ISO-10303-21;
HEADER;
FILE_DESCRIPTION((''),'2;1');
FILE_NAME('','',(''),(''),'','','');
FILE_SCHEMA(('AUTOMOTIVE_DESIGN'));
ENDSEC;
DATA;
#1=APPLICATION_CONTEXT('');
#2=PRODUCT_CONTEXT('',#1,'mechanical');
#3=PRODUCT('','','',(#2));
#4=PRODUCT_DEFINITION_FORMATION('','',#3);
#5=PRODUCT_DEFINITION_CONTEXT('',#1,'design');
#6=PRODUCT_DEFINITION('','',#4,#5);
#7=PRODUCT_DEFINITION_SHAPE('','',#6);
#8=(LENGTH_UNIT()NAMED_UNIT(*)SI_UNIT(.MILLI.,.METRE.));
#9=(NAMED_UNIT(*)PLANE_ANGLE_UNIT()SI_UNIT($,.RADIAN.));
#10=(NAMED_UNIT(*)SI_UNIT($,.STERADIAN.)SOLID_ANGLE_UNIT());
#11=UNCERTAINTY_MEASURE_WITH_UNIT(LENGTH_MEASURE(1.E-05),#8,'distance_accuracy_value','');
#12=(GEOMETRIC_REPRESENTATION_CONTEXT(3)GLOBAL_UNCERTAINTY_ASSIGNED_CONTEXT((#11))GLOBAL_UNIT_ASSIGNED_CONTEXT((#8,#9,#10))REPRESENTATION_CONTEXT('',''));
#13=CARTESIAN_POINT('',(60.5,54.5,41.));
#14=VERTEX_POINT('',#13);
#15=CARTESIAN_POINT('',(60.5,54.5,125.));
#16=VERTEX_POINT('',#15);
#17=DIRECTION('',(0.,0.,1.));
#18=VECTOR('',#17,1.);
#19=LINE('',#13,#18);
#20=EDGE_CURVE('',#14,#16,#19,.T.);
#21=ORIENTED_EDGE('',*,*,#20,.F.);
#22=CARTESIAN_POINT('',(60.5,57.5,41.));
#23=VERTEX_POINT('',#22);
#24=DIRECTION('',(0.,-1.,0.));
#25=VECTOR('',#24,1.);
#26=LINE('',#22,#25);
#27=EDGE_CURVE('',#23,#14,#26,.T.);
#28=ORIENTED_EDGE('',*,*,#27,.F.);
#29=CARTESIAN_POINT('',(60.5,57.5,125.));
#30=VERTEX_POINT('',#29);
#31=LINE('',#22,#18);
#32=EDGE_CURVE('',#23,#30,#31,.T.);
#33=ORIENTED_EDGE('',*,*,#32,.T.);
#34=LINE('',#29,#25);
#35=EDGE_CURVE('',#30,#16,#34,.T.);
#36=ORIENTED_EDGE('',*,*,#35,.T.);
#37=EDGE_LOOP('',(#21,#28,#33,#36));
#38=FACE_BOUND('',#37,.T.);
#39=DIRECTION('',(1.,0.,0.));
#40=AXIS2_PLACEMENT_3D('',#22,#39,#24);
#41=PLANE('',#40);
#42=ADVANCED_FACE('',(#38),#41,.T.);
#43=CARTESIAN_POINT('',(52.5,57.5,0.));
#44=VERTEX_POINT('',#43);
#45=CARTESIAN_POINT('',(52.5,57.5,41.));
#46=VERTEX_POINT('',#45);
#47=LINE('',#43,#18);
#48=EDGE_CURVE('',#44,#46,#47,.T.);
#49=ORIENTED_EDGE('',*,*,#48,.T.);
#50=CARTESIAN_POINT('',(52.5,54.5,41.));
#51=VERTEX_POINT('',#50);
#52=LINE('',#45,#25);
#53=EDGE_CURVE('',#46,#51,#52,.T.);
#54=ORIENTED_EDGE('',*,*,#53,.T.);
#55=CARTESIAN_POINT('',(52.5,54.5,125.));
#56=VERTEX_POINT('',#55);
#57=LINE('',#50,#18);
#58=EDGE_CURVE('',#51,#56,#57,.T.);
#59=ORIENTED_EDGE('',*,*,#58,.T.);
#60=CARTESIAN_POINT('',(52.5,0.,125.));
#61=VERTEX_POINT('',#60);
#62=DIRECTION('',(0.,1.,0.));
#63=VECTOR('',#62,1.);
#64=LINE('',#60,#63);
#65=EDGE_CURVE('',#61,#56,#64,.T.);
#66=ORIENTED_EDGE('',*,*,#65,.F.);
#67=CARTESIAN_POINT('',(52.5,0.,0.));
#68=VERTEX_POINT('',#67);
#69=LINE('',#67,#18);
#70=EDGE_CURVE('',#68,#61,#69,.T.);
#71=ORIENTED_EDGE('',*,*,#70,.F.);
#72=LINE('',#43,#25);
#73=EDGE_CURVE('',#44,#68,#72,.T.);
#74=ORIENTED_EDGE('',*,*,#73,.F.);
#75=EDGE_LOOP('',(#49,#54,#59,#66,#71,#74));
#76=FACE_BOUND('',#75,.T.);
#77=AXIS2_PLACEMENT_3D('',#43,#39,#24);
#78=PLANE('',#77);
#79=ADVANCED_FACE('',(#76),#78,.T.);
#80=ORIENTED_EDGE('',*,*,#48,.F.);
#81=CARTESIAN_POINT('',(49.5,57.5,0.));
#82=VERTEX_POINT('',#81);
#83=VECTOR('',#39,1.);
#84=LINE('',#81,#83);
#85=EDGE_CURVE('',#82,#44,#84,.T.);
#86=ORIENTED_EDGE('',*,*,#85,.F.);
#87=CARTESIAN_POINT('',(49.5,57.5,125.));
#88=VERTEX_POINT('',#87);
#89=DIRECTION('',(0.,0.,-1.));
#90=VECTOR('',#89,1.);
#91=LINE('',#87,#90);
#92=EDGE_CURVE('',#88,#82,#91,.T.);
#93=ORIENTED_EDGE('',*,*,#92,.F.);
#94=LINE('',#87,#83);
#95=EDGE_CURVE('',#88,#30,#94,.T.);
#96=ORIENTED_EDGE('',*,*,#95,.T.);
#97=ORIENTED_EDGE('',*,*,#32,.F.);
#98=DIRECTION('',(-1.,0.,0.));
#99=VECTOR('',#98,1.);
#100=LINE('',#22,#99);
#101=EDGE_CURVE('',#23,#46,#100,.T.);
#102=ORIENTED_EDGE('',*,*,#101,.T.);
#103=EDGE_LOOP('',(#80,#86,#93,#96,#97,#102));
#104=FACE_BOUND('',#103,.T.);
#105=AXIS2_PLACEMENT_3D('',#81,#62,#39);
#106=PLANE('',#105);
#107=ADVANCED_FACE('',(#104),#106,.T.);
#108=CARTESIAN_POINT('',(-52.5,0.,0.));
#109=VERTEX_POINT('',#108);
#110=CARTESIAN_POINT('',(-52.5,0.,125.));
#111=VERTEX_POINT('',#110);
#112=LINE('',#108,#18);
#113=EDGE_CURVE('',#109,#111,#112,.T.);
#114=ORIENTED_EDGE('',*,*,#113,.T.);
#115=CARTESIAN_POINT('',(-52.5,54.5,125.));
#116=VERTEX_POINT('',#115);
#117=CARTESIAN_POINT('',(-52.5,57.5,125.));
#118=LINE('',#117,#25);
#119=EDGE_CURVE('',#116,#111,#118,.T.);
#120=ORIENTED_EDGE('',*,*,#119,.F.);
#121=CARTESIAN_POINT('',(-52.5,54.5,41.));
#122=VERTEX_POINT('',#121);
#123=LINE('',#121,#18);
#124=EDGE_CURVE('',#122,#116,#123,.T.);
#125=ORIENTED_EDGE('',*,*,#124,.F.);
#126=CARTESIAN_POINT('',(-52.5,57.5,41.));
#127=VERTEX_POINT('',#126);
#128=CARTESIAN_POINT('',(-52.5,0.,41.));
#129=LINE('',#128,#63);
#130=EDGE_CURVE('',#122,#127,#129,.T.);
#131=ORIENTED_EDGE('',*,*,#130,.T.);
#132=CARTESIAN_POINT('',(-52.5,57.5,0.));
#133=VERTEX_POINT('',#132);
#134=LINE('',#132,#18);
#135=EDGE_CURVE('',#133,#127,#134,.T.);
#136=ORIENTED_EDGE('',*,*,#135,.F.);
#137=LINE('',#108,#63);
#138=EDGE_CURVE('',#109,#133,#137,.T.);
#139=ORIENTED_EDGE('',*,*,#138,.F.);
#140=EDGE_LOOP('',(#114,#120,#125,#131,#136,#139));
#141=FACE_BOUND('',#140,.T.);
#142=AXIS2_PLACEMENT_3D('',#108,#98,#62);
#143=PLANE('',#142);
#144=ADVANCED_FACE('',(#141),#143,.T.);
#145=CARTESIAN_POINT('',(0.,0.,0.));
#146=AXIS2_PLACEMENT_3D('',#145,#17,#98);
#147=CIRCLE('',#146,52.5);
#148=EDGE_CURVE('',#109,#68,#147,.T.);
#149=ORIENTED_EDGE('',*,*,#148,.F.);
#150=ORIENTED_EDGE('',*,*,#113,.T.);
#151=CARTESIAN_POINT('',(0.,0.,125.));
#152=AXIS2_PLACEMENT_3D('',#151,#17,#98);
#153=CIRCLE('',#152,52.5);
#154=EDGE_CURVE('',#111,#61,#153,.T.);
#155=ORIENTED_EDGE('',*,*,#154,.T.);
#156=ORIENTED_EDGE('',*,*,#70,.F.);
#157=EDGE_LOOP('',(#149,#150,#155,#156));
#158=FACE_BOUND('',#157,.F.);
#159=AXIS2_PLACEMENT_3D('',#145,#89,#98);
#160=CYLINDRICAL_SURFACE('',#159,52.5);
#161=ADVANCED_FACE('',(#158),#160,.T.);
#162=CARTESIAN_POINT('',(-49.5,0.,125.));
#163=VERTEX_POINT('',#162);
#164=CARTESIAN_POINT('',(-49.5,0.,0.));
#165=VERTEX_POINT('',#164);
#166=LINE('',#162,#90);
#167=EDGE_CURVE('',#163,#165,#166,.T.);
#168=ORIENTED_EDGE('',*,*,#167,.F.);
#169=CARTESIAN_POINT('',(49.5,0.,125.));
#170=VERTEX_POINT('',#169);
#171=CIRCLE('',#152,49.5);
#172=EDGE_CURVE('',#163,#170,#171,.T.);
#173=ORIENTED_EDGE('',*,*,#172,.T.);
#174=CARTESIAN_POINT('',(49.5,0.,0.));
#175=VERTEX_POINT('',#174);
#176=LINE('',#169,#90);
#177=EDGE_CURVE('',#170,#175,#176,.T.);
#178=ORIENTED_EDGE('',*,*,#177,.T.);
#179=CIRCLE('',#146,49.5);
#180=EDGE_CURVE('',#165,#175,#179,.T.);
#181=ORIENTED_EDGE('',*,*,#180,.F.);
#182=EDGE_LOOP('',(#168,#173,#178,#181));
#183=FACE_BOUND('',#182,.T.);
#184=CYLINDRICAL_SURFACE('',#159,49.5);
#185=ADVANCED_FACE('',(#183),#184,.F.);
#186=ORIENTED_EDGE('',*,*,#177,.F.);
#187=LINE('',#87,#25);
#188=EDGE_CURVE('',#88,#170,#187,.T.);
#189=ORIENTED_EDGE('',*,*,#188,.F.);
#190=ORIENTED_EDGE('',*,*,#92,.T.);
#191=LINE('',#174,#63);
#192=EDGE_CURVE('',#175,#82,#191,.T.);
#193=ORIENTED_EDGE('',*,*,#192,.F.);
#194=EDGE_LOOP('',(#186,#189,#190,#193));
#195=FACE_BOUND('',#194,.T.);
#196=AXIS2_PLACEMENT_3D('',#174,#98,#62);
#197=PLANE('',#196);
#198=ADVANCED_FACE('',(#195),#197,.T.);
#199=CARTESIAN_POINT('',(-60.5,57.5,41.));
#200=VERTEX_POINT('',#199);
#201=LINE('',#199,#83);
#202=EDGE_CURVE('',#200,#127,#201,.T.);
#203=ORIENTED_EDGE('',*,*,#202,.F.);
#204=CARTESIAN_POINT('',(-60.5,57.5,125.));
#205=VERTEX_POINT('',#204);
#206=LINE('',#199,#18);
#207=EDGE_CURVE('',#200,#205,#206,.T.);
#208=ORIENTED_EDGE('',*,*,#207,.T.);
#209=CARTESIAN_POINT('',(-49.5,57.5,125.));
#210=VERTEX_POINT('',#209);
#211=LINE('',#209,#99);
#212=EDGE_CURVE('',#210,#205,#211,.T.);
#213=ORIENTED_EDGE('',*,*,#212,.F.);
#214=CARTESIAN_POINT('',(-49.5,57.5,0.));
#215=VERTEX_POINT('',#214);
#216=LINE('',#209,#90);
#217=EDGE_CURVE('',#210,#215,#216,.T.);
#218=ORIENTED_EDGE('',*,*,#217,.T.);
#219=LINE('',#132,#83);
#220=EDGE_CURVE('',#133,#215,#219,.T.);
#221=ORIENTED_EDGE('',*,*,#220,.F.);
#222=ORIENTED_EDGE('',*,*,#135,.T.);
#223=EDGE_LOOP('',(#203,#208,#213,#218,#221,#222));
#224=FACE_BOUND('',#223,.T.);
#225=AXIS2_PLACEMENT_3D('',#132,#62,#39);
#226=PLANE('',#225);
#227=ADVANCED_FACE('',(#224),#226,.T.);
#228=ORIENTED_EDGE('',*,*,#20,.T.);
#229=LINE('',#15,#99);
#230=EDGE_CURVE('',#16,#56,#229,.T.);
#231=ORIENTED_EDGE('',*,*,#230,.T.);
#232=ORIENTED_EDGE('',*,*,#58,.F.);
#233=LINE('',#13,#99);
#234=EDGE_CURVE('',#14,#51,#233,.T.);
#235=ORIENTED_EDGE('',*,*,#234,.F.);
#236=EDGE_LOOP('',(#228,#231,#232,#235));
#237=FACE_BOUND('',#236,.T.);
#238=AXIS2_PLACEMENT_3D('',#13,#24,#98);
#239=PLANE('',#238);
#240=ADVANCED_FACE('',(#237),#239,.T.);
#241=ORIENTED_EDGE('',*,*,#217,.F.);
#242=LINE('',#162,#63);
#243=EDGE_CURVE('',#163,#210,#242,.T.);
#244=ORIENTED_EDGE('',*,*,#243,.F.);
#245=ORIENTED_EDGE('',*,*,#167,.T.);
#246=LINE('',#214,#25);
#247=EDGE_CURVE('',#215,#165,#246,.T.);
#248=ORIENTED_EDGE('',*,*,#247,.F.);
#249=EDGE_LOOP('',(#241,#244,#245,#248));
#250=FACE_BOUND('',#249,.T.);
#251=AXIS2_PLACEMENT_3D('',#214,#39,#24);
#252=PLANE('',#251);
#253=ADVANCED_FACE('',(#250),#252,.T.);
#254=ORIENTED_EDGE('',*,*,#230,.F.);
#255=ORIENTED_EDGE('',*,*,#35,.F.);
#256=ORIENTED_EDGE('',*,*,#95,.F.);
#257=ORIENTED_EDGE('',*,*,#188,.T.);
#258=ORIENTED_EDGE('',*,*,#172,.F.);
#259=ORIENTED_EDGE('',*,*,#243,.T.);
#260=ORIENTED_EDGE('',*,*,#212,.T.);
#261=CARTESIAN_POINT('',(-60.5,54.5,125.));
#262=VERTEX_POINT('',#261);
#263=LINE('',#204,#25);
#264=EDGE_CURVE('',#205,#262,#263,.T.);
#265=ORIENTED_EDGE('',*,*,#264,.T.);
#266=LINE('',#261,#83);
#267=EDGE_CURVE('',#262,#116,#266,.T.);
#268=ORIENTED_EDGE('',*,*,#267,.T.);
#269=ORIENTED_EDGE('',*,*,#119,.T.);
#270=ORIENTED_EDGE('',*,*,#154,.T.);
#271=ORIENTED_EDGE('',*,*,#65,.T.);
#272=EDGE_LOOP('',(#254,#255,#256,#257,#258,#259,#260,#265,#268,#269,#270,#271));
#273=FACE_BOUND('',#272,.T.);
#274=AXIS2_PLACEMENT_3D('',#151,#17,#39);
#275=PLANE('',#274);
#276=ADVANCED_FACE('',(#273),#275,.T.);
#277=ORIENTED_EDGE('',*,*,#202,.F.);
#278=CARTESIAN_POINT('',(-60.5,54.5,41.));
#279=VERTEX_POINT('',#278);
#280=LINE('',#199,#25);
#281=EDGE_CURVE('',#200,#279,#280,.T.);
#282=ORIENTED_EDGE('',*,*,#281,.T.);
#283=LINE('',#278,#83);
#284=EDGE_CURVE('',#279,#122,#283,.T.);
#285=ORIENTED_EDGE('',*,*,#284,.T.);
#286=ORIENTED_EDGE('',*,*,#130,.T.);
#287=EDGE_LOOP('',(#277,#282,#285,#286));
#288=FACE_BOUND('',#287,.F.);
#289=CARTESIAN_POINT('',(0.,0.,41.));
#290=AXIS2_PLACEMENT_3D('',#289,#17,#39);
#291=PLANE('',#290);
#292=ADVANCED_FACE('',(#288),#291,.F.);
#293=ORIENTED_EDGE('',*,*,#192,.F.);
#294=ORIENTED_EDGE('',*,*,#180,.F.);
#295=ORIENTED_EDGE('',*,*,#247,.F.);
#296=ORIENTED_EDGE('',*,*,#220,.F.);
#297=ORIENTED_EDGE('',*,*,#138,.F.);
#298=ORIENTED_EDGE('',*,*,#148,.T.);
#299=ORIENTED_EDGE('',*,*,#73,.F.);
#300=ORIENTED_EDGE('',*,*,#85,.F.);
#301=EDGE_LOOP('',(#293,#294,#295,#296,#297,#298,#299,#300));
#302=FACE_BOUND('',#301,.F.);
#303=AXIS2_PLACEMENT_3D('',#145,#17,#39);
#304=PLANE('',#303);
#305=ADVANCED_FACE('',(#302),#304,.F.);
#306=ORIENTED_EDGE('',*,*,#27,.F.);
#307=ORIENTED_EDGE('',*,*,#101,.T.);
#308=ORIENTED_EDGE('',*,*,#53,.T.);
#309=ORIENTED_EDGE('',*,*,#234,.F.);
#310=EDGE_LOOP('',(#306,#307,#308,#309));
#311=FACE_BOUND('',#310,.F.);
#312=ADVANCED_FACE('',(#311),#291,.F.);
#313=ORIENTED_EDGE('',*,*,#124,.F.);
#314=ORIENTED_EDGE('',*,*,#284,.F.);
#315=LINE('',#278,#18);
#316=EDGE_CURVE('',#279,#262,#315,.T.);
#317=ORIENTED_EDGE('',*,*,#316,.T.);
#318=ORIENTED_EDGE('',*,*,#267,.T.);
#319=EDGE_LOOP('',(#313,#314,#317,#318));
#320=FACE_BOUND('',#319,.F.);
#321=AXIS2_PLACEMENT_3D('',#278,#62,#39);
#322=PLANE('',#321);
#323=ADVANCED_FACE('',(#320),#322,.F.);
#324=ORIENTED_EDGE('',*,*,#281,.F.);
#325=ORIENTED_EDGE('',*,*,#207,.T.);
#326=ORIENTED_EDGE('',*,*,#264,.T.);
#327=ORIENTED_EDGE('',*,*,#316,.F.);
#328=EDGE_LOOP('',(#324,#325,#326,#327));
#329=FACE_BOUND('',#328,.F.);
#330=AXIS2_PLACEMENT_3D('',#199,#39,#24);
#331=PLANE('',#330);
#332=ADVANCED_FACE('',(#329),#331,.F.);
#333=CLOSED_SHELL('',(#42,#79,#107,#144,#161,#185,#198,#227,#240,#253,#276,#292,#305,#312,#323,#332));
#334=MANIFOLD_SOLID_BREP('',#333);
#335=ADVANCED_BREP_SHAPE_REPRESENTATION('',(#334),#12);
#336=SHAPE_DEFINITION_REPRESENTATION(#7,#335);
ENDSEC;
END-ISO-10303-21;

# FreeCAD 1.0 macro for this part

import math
import FreeCAD as App
import Part
import Sketcher

V = App.Vector
Q = App.Units.Quantity

doc = App.newDocument("Part")
body = doc.addObject("PartDesign::Body", "Body")

# Sketch on XY plane
sketch1 = doc.addObject("Sketcher::SketchObject", "Sketch")
body.addObject(sketch1)
sketch1.AttachmentSupport = (doc.XY_Plane, [""])
sketch1.MapMode = "FlatFace"
sketch1.addGeometry([
    Part.LineSegment(V(-52.5, 57.5, 0), V(-52.5, 0, 0)),  # 0
    Part.ArcOfCircle(Part.Circle(V(0, 0, 0), V(0, 0, 1), 52.5), math.radians(180), math.radians(360)),  # 1
    Part.LineSegment(V(52.5, 0, 0), V(52.5, 57.5, 0)),  # 2
    Part.LineSegment(V(52.5, 57.5, 0), V(49.5, 57.5, 0)),  # 3
    Part.LineSegment(V(49.5, 57.5, 0), V(49.5, 0, 0)),  # 4
    Part.ArcOfCircle(Part.Circle(V(0, 0, 0), V(0, 0, 1), 49.5), math.radians(180), math.radians(360)),  # 5
    Part.LineSegment(V(-49.5, 0, 0), V(-49.5, 57.5, 0)),  # 6
    Part.LineSegment(V(-49.5, 57.5, 0), V(-52.5, 57.5, 0)),  # 7
], False)
sketch1.addConstraint([
    Sketcher.Constraint("Tangent", 0, 2, 1, 1),
    Sketcher.Constraint("Tangent", 1, 2, 2, 1),
    Sketcher.Constraint("Coincident", 2, 2, 3, 1),
    Sketcher.Constraint("Coincident", 3, 2, 4, 1),
    Sketcher.Constraint("Tangent", 4, 2, 5, 2),
    Sketcher.Constraint("Tangent", 5, 1, 6, 1),
    Sketcher.Constraint("Coincident", 6, 2, 7, 1),
    Sketcher.Constraint("Coincident", 7, 2, 0, 1),
    Sketcher.Constraint("Vertical", 0),
    Sketcher.Constraint("Vertical", 2),
    Sketcher.Constraint("Horizontal", 3),
    Sketcher.Constraint("Vertical", 4),
    Sketcher.Constraint("Vertical", 6),
    Sketcher.Constraint("Horizontal", 7),
    Sketcher.Constraint("Coincident", 1, 3, -1, 1),
    Sketcher.Constraint("Coincident", 5, 3, -1, 1),
    Sketcher.Constraint("Horizontal", 3, 2, 6, 2),
    Sketcher.Constraint("Radius", 1, Q("52.5 mm")),
    Sketcher.Constraint("DistanceX", 3, 2, 3, 1, Q("3 mm")),
    Sketcher.Constraint("DistanceY", 0, 2, 0, 1, Q("57.5 mm")),
])
pad1 = doc.addObject("PartDesign::Pad", "Pad")
body.addObject(pad1)
pad1.Profile = sketch1
pad1.Length = 41

# Sketch on XY plane
sketch2 = doc.addObject("Sketcher::SketchObject", "Sketch001")
body.addObject(sketch2)
sketch2.AttachmentSupport = (doc.XY_Plane, [""])
sketch2.MapMode = "FlatFace"
sketch2.AttachmentOffset = App.Placement(V(0, 0, 41), App.Rotation())
sketch2.addGeometry([
    Part.LineSegment(V(49.5, 57.5, 0), V(49.5, 0, 0)),  # 0
    Part.ArcOfCircle(Part.Circle(V(0, 0, 0), V(0, 0, 1), 49.5), math.radians(180), math.radians(360)),  # 1
    Part.LineSegment(V(-49.5, 0, 0), V(-49.5, 57.5, 0)),  # 2
    Part.LineSegment(V(-49.5, 57.5, 0), V(-60.5, 57.5, 0)),  # 3
    Part.LineSegment(V(-60.5, 57.5, 0), V(-60.5, 54.5, 0)),  # 4
    Part.LineSegment(V(-60.5, 54.5, 0), V(-52.5, 54.5, 0)),  # 5
    Part.LineSegment(V(-52.5, 54.5, 0), V(-52.5, 0, 0)),  # 6
    Part.ArcOfCircle(Part.Circle(V(0, 0, 0), V(0, 0, 1), 52.5), math.radians(180), math.radians(360)),  # 7
    Part.LineSegment(V(52.5, 0, 0), V(52.5, 54.5, 0)),  # 8
    Part.LineSegment(V(52.5, 54.5, 0), V(60.5, 54.5, 0)),  # 9
    Part.LineSegment(V(60.5, 54.5, 0), V(60.5, 57.5, 0)),  # 10
    Part.LineSegment(V(60.5, 57.5, 0), V(49.5, 57.5, 0)),  # 11
], False)
sketch2.addConstraint([
    Sketcher.Constraint("Tangent", 0, 2, 1, 2),
    Sketcher.Constraint("Tangent", 1, 1, 2, 1),
    Sketcher.Constraint("Coincident", 2, 2, 3, 1),
    Sketcher.Constraint("Coincident", 3, 2, 4, 1),
    Sketcher.Constraint("Coincident", 4, 2, 5, 1),
    Sketcher.Constraint("Coincident", 5, 2, 6, 1),
    Sketcher.Constraint("Tangent", 6, 2, 7, 1),
    Sketcher.Constraint("Tangent", 7, 2, 8, 1),
    Sketcher.Constraint("Coincident", 8, 2, 9, 1),
    Sketcher.Constraint("Coincident", 9, 2, 10, 1),
    Sketcher.Constraint("Coincident", 10, 2, 11, 1),
    Sketcher.Constraint("Coincident", 11, 2, 0, 1),
    Sketcher.Constraint("Vertical", 0),
    Sketcher.Constraint("Vertical", 2),
    Sketcher.Constraint("Horizontal", 3),
    Sketcher.Constraint("Vertical", 4),
    Sketcher.Constraint("Horizontal", 5),
    Sketcher.Constraint("Vertical", 6),
    Sketcher.Constraint("Vertical", 8),
    Sketcher.Constraint("Horizontal", 9),
    Sketcher.Constraint("Vertical", 10),
    Sketcher.Constraint("Horizontal", 11),
    Sketcher.Constraint("Coincident", 1, 3, -1, 1),
    Sketcher.Constraint("Coincident", 7, 3, -1, 1),
    Sketcher.Constraint("Symmetric", 4, 2, 9, 2, -2),
    Sketcher.Constraint("Horizontal", 3, 2, 10, 2),
    Sketcher.Constraint("DistanceX", 5, 1, 5, 2, Q("8 mm")),
    Sketcher.Constraint("DistanceY", 4, 2, 4, 1, Q("3 mm")),
    Sketcher.Constraint("DistanceX", 5, 2, 2, 2, Q("3 mm")),
    Sketcher.Constraint("Radius", 1, Q("49.5 mm")),
    Sketcher.Constraint("DistanceY", 0, 2, 0, 1, Q("57.5 mm")),
])
pad2 = doc.addObject("PartDesign::Pad", "Pad001")
body.addObject(pad2)
pad2.Profile = sketch2
pad2.Length = 84

doc.recompute()
